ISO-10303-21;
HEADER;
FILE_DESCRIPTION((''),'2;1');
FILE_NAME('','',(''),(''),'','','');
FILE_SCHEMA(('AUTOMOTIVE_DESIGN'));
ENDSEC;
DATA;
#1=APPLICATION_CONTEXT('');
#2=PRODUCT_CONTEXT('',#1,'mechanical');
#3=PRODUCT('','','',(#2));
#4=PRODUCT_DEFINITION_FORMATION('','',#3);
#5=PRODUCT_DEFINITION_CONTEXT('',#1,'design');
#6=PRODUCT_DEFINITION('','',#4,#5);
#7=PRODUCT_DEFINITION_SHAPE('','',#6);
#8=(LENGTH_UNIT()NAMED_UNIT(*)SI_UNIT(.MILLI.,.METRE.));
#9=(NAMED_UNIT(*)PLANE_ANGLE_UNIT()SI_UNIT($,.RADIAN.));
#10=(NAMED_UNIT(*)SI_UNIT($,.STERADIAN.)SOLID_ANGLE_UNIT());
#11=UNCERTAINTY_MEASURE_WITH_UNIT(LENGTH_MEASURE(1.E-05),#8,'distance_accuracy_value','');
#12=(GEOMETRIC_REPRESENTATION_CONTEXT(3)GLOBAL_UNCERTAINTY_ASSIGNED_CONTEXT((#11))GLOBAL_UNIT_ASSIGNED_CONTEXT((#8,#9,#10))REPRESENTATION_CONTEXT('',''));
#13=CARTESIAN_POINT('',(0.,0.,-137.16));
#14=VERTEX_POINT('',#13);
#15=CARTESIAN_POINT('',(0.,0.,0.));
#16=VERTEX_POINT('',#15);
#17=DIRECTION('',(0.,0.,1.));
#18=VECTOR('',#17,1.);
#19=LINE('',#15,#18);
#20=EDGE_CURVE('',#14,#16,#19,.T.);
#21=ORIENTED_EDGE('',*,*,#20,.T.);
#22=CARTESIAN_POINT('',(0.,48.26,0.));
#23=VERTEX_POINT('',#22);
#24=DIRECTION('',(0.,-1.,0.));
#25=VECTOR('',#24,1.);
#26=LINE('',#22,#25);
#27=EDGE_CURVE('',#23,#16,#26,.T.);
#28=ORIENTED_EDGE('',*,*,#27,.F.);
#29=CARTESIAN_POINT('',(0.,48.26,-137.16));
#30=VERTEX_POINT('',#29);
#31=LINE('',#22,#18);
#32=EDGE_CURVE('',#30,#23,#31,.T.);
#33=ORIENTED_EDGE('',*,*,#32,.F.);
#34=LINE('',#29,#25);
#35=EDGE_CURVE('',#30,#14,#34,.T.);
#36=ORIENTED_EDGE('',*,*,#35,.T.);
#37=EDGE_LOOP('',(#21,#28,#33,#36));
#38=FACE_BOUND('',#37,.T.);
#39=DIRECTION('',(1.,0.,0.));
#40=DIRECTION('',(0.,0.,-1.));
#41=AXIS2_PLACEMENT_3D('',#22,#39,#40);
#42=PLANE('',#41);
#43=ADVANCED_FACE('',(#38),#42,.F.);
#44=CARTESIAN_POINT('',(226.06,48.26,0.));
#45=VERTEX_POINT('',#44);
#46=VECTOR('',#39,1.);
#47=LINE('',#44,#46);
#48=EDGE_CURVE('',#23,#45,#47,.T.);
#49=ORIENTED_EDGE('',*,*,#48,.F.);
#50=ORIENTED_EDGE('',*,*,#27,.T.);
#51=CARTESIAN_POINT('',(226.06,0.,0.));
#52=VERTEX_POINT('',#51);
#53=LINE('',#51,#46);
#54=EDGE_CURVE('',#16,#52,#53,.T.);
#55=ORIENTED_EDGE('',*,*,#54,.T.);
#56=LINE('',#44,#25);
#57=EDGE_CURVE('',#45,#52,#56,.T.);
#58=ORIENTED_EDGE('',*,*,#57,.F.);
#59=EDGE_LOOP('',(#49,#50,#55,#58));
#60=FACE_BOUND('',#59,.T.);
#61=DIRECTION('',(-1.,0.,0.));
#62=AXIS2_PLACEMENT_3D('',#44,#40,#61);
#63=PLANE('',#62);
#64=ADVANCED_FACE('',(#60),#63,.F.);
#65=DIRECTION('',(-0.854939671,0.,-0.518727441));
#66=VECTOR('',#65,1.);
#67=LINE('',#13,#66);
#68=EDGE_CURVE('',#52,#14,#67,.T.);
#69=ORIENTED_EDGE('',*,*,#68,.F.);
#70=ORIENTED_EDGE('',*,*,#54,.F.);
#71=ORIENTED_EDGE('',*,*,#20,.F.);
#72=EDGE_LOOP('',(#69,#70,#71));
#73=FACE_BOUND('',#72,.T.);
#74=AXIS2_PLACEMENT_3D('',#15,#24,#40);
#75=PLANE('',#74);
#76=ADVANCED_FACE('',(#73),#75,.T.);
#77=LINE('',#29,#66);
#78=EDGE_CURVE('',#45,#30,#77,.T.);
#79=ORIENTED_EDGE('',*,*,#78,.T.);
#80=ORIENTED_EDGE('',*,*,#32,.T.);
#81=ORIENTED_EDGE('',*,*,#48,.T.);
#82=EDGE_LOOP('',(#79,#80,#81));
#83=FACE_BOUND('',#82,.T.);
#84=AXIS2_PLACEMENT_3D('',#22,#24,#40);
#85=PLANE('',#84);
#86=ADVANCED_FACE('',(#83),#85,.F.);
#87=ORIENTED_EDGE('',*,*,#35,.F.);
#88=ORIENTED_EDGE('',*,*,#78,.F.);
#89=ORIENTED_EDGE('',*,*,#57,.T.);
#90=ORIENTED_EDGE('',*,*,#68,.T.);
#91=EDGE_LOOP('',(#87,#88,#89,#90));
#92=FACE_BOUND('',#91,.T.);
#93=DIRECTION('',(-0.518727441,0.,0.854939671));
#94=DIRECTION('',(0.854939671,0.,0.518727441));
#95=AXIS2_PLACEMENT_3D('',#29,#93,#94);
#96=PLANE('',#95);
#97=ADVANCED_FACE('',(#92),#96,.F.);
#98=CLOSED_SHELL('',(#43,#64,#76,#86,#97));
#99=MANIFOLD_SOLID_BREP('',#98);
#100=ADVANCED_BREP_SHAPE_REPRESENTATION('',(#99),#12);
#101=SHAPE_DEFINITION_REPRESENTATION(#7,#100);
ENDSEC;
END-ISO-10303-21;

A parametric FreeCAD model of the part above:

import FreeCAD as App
import Part
import Sketcher
Q = App.Units.Quantity


def add_polygon(sketch, points):
    """Adds a closed chain of lines whose ends are joined by coincident constraints."""
    first, n = sketch.GeometryCount, len(points)
    for a, b in zip(points, points[1:] + points[:1]):
        sketch.addGeometry(Part.LineSegment(App.Vector(*a, 0), App.Vector(*b, 0)), False)
    for i in range(n):
        sketch.addConstraint(Sketcher.Constraint("Coincident", first + i, 2, first + (i + 1) % n, 1))

doc = App.newDocument("Part")
body = doc.addObject("PartDesign::Body", "Body")

# Sketch on XZ plane
sketch1 = body.newObject("Sketcher::SketchObject", "Sketch")
sketch1.AttachmentSupport = (doc.getObject("XZ_Plane"), [""])
sketch1.MapMode = "FlatFace"
add_polygon(sketch1, [(0, -137), (0, 0), (226, 0)])  # lines 0-2
sketch1.addConstraint([
    Sketcher.Constraint("Vertical", 0),
    Sketcher.Constraint("Horizontal", 1),
    Sketcher.Constraint("Coincident", 0, 2, -1, 1),
    Sketcher.Constraint("DistanceX", 1, 1, 1, 2, Q("8.9 in")),
    Sketcher.Constraint("DistanceY", 0, 1, 0, 2, Q("5.4 in")),
])
pad1 = body.newObject("PartDesign::Pad", "Pad")
pad1.Profile = sketch1
pad1.Length = Q("1.9 in")
pad1.Reversed = True

doc.recompute()
